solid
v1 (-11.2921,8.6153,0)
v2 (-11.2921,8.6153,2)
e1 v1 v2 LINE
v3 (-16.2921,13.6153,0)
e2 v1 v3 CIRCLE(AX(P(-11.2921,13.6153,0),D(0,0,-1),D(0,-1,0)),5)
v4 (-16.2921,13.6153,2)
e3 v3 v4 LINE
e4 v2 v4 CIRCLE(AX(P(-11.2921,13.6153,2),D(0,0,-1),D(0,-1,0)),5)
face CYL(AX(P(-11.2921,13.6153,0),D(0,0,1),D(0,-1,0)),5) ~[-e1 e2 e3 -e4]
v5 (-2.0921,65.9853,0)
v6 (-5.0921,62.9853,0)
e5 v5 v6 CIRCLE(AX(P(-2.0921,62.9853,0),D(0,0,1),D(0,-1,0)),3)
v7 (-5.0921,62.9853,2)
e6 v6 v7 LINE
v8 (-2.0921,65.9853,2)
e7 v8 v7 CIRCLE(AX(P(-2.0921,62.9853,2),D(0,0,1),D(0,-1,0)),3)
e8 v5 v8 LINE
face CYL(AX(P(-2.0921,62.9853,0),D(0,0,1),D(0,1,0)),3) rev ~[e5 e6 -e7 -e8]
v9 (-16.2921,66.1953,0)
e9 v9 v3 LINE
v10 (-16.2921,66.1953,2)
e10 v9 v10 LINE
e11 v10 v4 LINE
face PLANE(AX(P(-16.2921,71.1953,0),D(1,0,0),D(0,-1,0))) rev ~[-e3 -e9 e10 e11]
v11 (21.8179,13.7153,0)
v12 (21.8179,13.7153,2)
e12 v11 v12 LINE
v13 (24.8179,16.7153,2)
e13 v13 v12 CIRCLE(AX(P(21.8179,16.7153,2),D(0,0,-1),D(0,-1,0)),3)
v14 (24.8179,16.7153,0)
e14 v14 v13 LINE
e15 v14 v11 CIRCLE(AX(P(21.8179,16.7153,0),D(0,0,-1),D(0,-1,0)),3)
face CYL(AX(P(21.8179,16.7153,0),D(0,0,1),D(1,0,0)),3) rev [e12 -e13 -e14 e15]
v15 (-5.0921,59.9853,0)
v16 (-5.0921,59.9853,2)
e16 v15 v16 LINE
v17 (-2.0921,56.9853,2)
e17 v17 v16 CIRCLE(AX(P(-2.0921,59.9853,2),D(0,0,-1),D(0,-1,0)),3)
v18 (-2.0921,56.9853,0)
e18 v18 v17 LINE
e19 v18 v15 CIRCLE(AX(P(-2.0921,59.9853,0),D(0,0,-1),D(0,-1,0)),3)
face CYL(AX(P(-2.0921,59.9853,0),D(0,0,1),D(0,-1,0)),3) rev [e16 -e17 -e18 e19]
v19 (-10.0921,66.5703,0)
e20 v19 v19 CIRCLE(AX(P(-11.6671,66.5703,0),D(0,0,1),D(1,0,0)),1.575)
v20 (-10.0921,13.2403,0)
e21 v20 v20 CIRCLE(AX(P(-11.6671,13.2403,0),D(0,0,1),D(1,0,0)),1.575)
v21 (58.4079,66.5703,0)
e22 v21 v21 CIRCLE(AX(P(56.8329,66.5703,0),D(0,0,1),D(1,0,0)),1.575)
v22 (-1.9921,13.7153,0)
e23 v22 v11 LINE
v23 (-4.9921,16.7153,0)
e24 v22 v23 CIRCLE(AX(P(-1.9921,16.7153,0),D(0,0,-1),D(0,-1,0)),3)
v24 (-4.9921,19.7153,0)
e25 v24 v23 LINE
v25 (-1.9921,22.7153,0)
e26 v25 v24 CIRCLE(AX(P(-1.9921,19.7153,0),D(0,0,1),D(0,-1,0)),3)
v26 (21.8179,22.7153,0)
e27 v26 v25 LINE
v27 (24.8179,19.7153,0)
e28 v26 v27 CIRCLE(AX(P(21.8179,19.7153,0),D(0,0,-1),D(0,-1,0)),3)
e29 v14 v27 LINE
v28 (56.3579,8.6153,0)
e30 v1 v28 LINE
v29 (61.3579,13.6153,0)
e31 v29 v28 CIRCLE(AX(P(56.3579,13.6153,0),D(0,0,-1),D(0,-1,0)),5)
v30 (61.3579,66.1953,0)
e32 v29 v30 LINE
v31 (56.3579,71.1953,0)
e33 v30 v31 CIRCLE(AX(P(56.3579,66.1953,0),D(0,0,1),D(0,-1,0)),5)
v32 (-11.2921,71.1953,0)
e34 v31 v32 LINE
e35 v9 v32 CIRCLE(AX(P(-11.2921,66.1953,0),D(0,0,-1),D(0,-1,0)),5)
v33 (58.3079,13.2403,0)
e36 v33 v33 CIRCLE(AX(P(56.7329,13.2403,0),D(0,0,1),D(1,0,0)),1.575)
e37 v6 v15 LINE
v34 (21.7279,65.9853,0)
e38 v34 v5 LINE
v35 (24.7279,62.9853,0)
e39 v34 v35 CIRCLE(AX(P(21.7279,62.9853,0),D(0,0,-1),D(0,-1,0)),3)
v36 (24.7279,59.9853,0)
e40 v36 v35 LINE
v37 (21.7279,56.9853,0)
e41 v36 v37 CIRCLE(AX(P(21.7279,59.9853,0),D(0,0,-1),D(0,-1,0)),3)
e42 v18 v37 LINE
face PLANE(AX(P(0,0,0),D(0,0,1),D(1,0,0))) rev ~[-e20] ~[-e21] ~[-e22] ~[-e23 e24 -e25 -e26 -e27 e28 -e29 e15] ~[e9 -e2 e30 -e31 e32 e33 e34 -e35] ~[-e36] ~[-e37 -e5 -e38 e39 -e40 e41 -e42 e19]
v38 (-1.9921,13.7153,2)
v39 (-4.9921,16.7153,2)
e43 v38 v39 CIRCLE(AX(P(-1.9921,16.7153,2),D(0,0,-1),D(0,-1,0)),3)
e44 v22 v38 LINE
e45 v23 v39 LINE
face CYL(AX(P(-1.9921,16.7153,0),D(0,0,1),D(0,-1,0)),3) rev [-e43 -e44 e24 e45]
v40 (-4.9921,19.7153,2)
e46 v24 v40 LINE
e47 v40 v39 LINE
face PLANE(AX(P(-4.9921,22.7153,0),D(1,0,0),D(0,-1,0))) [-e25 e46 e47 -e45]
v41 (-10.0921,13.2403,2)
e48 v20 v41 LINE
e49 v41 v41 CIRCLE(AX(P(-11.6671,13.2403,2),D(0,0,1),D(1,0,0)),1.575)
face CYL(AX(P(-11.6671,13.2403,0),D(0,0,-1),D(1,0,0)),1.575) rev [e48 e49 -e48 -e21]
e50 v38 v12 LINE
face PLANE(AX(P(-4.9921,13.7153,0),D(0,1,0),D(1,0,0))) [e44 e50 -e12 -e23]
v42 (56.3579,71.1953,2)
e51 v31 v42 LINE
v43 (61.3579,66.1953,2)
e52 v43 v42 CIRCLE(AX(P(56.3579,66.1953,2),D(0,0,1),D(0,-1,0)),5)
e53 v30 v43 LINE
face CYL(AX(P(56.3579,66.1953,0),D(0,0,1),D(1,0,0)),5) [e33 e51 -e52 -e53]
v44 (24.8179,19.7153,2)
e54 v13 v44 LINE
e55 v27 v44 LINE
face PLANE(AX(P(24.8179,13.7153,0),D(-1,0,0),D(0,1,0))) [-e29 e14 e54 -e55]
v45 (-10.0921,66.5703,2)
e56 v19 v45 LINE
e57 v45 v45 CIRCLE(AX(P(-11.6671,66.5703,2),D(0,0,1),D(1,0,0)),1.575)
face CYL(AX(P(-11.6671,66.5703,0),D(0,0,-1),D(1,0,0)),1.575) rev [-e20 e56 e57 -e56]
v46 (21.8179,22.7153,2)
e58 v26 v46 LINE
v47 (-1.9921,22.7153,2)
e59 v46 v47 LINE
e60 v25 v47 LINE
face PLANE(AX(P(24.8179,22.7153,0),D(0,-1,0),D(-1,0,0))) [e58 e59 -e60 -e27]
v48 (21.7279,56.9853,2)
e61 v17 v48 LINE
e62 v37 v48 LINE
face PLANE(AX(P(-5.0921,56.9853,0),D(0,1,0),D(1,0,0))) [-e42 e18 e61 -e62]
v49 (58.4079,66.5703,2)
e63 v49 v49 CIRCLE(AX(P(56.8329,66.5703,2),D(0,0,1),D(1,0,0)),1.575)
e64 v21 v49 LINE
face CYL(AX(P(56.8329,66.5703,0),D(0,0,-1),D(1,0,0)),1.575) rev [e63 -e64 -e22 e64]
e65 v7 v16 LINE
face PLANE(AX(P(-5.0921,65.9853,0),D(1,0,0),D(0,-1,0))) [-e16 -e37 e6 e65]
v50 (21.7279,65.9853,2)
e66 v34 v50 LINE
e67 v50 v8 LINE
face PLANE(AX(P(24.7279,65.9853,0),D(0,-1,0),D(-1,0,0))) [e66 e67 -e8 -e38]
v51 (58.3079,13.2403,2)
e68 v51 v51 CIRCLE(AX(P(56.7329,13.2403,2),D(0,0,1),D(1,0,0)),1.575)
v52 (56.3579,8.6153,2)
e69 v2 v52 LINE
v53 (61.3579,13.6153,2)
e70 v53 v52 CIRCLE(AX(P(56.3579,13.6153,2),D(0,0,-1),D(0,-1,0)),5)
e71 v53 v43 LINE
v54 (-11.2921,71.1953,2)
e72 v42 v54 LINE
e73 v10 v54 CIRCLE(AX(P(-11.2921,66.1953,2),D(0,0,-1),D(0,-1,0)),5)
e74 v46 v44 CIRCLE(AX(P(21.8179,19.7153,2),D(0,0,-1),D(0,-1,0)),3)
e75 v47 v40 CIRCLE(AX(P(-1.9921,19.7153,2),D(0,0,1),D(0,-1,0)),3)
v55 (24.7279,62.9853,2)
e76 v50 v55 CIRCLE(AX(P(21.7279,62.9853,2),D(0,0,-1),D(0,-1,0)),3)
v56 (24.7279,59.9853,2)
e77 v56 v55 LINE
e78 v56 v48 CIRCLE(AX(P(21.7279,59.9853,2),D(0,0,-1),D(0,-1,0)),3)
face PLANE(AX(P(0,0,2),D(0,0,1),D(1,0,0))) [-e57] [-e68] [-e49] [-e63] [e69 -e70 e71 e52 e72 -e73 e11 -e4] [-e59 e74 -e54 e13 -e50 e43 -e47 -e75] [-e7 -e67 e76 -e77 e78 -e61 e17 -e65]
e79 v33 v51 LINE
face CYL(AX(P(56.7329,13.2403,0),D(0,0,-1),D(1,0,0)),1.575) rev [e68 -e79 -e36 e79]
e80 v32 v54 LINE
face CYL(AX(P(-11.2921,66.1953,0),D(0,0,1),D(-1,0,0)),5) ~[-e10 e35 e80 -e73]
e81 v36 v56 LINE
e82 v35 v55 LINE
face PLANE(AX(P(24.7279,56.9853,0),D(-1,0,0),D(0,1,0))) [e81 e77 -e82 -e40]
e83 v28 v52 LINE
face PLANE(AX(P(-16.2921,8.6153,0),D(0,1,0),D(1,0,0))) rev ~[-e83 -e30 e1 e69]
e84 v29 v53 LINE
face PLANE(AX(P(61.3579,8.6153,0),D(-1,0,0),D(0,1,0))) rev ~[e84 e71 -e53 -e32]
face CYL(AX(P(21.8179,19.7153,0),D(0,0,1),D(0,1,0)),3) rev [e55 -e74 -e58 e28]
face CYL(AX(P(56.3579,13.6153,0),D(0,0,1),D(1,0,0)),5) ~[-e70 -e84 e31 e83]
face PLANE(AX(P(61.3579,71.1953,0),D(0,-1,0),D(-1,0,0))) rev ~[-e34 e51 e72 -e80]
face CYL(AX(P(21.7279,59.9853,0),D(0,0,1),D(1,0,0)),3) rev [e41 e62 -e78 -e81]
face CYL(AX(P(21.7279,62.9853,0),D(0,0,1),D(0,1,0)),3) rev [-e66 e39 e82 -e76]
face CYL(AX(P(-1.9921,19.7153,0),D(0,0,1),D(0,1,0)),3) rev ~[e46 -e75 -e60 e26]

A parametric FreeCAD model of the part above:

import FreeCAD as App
import Part
import Sketcher

V = App.Vector
Q = App.Units.Quantity


def edges_at(feature, points):
    """Names of the edges that pass closest to the given points."""
    edges = feature.Shape.Edges
    near = lambda p: min(range(len(edges)), key=lambda i: edges[i].distToShape(Part.Vertex(*p))[0])
    return sorted({f"Edge{near(p) + 1}" for p in points})

doc = App.newDocument("Part")
body = doc.addObject("PartDesign::Body", "Body")

# Sketch on XY plane
sketch1 = body.newObject("Sketcher::SketchObject", "Sketch")
sketch1.AttachmentSupport = (doc.getObject("XY_Plane"), [""])
sketch1.MapMode = "FlatFace"
sketch1.addGeometry([
    Part.LineSegment(V(61.4, 8.6, 0), V(61.4, 71.2, 0)),  # 0
    Part.LineSegment(V(61.4, 71.2, 0), V(-16.3, 71.2, 0)),  # 1
    Part.LineSegment(V(-16.3, 71.2, 0), V(-16.3, 8.6, 0)),  # 2
    Part.LineSegment(V(-16.3, 8.6, 0), V(61.4, 8.6, 0)),  # 3
    Part.Circle(V(-11.7, 13.2, 0), V(0, 0, 1), 1.6),  # 4
    Part.LineSegment(V(-5, 22.7, 0), V(24.8, 22.7, 0)),  # 5
    Part.LineSegment(V(24.8, 22.7, 0), V(24.8, 13.7, 0)),  # 6
    Part.LineSegment(V(24.8, 13.7, 0), V(-5, 13.7, 0)),  # 7
    Part.LineSegment(V(-5, 13.7, 0), V(-5, 22.7, 0)),  # 8
    Part.Circle(V(56.7, 13.2, 0), V(0, 0, 1), 1.6),  # 9
    Part.Circle(V(-11.7, 66.6, 0), V(0, 0, 1), 1.6),  # 10
    Part.LineSegment(V(-5.1, 66, 0), V(24.7, 66, 0)),  # 11
    Part.LineSegment(V(24.7, 66, 0), V(24.7, 57, 0)),  # 12
    Part.LineSegment(V(24.7, 57, 0), V(-5.1, 57, 0)),  # 13
    Part.LineSegment(V(-5.1, 57, 0), V(-5.1, 66, 0)),  # 14
    Part.Circle(V(56.8, 66.6, 0), V(0, 0, 1), 1.6),  # 15
], False)
sketch1.addConstraint([
    Sketcher.Constraint("Coincident", 0, 2, 1, 1),
    Sketcher.Constraint("Coincident", 1, 2, 2, 1),
    Sketcher.Constraint("Coincident", 2, 2, 3, 1),
    Sketcher.Constraint("Coincident", 3, 2, 0, 1),
    Sketcher.Constraint("Coincident", 5, 2, 6, 1),
    Sketcher.Constraint("Coincident", 6, 2, 7, 1),
    Sketcher.Constraint("Coincident", 7, 2, 8, 1),
    Sketcher.Constraint("Coincident", 8, 2, 5, 1),
    Sketcher.Constraint("Coincident", 11, 2, 12, 1),
    Sketcher.Constraint("Coincident", 12, 2, 13, 1),
    Sketcher.Constraint("Coincident", 13, 2, 14, 1),
    Sketcher.Constraint("Coincident", 14, 2, 11, 1),
    Sketcher.Constraint("Vertical", 0),
    Sketcher.Constraint("Horizontal", 1),
    Sketcher.Constraint("Vertical", 2),
    Sketcher.Constraint("Horizontal", 3),
    Sketcher.Constraint("Horizontal", 5),
    Sketcher.Constraint("Vertical", 6),
    Sketcher.Constraint("Horizontal", 7),
    Sketcher.Constraint("Vertical", 8),
    Sketcher.Constraint("Horizontal", 11),
    Sketcher.Constraint("Vertical", 12),
    Sketcher.Constraint("Horizontal", 13),
    Sketcher.Constraint("Vertical", 14),
    Sketcher.Constraint("Equal", 4, 9),
    Sketcher.Constraint("Equal", 9, 10),
    Sketcher.Constraint("Equal", 10, 15),
    Sketcher.Constraint("Horizontal", 4, 3, 9, 3),
    Sketcher.Constraint("Horizontal", 10, 3, 15, 3),
    Sketcher.Constraint("Vertical", 4, 3, 10, 3),
    Sketcher.Constraint("Equal", 8, 12),
    Sketcher.Constraint("Diameter", 4, Q("3.15 mm")),
    Sketcher.Constraint("DistanceY", 3, 2, 6, 2, Q("5.1 mm")),
    Sketcher.Constraint("DistanceX", 2, 2, 7, 2, Q("11.3 mm")),
    Sketcher.Constraint("DistanceX", 1, 2, 13, 2, Q("11.2 mm")),
    Sketcher.Constraint("DistanceY", 6, 2, 6, 1, Q("9 mm")),
    Sketcher.Constraint("DistanceY", 11, 2, 0, 2, Q("5.21 mm")),
    Sketcher.Constraint("DistanceX", 1, 2, 1, 1, Q("77.65 mm")),
    Sketcher.Constraint("DistanceX", 5, 1, 5, 2, Q("29.81 mm")),
    Sketcher.Constraint("DistanceX", 11, 1, 11, 2, Q("29.82 mm")),
    Sketcher.Constraint("DistanceY", 0, 1, 0, 2, Q("62.58 mm")),
    Sketcher.Constraint("DistanceX", 4, 3, 9, 3, Q("68.4 mm")),
    Sketcher.Constraint("DistanceX", 9, 3, 15, 3, Q("0.1 mm")),
    Sketcher.Constraint("DistanceY", 4, 3, 10, 3, Q("53.33 mm")),
    Sketcher.Constraint("DistanceX", 4, 3, -1, 1, Q("11.667 mm")),
    Sketcher.Constraint("DistanceX", -1, 1, 0, 2, Q("61.358 mm")),
    Sketcher.Constraint("DistanceY", 15, 3, 0, 2, Q("4.625 mm")),
    Sketcher.Constraint("DistanceY", -1, 1, 4, 3, Q("13.2403 mm")),
])
pad1 = body.newObject("PartDesign::Pad", "Pad")
pad1.Profile = sketch1
pad1.Length = 2
doc.recompute()

fillet = body.newObject("PartDesign::Fillet", "Fillet")
fillet.Base = (pad1, edges_at(pad1, [
    (61.358, 8.615, 1),
    (61.358, 71.195, 1),
    (-16.292, 71.195, 1),
    (-16.292, 8.615, 1),
]))
fillet.Radius = 5
doc.recompute()

fillet2 = body.newObject("PartDesign::Fillet", "Fillet001")
fillet2.Base = (fillet, edges_at(fillet, [
    (-5.092, 65.985, 1),
    (-5.092, 56.985, 1),
    (24.728, 65.985, 1),
    (24.818, 22.715, 1),
    (24.728, 56.985, 1),
    (24.818, 13.715, 1),
    (-4.992, 13.715, 1),
    (-4.992, 22.715, 1),
]))
fillet2.Radius = 3

doc.recompute()
